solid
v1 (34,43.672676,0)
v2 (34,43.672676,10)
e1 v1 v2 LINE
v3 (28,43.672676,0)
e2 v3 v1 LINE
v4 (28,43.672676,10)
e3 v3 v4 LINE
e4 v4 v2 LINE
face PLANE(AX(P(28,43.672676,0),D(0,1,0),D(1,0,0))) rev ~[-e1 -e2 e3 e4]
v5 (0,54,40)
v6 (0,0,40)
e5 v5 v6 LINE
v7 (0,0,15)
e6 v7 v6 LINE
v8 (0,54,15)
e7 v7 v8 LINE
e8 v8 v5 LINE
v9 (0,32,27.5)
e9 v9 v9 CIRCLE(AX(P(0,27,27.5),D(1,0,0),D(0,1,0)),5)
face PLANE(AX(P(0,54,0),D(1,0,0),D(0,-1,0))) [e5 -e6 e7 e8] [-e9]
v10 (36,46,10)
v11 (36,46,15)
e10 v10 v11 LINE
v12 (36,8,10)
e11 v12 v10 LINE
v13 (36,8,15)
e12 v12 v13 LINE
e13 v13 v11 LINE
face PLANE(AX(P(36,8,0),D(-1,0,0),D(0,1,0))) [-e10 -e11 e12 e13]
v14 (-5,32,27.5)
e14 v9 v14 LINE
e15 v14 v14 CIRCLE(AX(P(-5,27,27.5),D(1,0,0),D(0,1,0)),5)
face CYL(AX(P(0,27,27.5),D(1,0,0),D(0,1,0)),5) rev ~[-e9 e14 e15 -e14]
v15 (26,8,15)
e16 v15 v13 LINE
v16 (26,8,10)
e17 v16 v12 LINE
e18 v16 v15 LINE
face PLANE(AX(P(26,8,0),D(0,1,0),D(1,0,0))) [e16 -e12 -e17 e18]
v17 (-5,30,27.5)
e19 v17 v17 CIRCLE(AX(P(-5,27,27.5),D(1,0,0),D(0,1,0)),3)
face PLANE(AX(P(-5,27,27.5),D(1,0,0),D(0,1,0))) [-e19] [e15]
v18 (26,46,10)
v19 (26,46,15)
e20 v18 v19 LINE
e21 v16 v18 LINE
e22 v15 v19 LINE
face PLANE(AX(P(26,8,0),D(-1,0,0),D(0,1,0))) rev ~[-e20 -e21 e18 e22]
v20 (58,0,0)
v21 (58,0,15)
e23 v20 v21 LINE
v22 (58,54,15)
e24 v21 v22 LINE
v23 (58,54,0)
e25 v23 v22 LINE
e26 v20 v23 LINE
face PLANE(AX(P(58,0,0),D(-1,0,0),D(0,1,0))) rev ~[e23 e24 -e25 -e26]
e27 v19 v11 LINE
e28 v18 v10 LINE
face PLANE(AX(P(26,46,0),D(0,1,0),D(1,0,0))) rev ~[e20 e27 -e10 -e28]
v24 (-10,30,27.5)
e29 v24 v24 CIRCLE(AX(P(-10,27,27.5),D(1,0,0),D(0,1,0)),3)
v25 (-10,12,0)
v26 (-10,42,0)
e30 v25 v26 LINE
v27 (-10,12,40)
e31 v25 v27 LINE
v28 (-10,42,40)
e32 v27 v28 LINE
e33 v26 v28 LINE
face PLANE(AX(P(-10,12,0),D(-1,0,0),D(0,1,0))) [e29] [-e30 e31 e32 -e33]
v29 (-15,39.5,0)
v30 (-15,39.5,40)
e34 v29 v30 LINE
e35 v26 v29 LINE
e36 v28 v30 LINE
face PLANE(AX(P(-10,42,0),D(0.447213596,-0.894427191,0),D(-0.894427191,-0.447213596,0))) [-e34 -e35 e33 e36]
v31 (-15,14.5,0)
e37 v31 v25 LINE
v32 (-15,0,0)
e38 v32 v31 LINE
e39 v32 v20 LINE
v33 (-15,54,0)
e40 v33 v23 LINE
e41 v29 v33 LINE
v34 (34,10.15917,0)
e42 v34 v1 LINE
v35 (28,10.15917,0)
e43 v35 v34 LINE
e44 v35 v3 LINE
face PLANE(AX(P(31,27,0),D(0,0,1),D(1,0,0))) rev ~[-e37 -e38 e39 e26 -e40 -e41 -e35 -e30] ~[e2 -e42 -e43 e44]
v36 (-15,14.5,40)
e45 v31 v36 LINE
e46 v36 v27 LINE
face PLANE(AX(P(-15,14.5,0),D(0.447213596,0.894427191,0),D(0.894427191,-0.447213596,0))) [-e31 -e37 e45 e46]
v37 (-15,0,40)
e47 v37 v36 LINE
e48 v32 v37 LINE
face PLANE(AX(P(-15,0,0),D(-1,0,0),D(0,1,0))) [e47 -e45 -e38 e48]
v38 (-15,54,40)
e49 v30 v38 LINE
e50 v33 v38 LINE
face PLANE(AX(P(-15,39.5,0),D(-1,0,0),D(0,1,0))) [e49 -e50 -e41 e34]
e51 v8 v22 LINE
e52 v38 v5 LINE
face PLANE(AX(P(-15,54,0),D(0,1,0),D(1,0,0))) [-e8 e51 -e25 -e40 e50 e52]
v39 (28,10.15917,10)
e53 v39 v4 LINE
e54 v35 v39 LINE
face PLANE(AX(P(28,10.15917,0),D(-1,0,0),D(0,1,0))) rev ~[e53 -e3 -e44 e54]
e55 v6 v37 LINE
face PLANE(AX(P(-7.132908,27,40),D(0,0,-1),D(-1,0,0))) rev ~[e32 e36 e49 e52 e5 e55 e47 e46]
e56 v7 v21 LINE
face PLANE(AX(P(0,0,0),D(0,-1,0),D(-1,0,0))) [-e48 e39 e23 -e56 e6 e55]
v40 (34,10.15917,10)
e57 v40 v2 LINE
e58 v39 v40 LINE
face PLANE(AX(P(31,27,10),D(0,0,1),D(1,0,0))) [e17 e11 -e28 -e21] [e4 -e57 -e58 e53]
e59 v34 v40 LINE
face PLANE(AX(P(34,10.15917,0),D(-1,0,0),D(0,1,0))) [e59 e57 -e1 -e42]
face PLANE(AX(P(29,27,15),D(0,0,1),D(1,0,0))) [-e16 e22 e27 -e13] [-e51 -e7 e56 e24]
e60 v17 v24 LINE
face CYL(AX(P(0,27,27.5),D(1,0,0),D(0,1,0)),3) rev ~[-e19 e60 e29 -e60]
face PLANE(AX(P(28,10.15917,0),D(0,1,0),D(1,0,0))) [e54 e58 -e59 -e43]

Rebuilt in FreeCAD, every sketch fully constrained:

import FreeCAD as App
import Part
import Sketcher

V = App.Vector


def add_polygon(sketch, points):
    """Adds a closed chain of lines whose ends are joined by coincident constraints."""
    first, n = sketch.GeometryCount, len(points)
    for a, b in zip(points, points[1:] + points[:1]):
        sketch.addGeometry(Part.LineSegment(App.Vector(*a, 0), App.Vector(*b, 0)), False)
    for i in range(n):
        sketch.addConstraint(Sketcher.Constraint("Coincident", first + i, 2, first + (i + 1) % n, 1))

doc = App.newDocument("Part")
body = doc.addObject("PartDesign::Body", "Body")

# Sketch on XY plane
sketch1 = doc.addObject("Sketcher::SketchObject", "Sketch")
body.addObject(sketch1)
sketch1.AttachmentSupport = (doc.XY_Plane, [""])
sketch1.MapMode = "FlatFace"
add_polygon(sketch1, [(0, 54), (0, 0), (58, 0), (58, 54)])  # lines 0-3
add_polygon(sketch1, [(36, 8), (26, 8), (26, 46), (36, 46)])  # lines 4-7
sketch1.addConstraint([
    Sketcher.Constraint("Vertical", 0),
    Sketcher.Constraint("Horizontal", 1),
    Sketcher.Constraint("Vertical", 2),
    Sketcher.Constraint("Horizontal", 3),
    Sketcher.Constraint("Horizontal", 4),
    Sketcher.Constraint("Vertical", 5),
    Sketcher.Constraint("Horizontal", 6),
    Sketcher.Constraint("Vertical", 7),
    Sketcher.Constraint("Coincident", 0, 2, -1, 1),
    Sketcher.Constraint("DistanceX", 1, 1, 1, 2, 58.0),
    Sketcher.Constraint("DistanceX", 4, 2, 4, 1, 10.0),
    Sketcher.Constraint("DistanceY", 0, 2, 0, 1, 54.0),
    Sketcher.Constraint("DistanceY", 5, 1, 5, 2, 38.0),
    Sketcher.Constraint("DistanceX", -1, 1, 4, 2, 26.0),
    Sketcher.Constraint("DistanceY", -1, 1, 4, 2, 8.0),
])
pad1 = doc.addObject("PartDesign::Pad", "Pad")
body.addObject(pad1)
pad1.Profile = sketch1
pad1.Length = 15

# Sketch on XY plane
sketch2 = doc.addObject("Sketcher::SketchObject", "Sketch001")
body.addObject(sketch2)
sketch2.AttachmentSupport = (doc.XY_Plane, [""])
sketch2.MapMode = "FlatFace"
add_polygon(sketch2, [(-15, 14.5), (-15, 0), (0, 0), (0, 54), (-15, 54), (-15, 39.5), (-10, 42), (-10, 12)])  # lines 0-7
sketch2.addConstraint([
    Sketcher.Constraint("Vertical", 0),
    Sketcher.Constraint("Horizontal", 1),
    Sketcher.Constraint("Vertical", 2),
    Sketcher.Constraint("Horizontal", 3),
    Sketcher.Constraint("Vertical", 4),
    Sketcher.Constraint("Vertical", 6),
    Sketcher.Constraint("Coincident", 1, 2, -1, 1),
    Sketcher.Constraint("Vertical", 0, 2, 3, 2),
    Sketcher.Constraint("Equal", 0, 4),
    Sketcher.Constraint("Equal", 5, 7),
    Sketcher.Constraint("DistanceX", 1, 1, 1, 2, 15.0),
    Sketcher.Constraint("DistanceY", 2, 1, 2, 2, 54.0),
    Sketcher.Constraint("DistanceY", 6, 2, 6, 1, 30.0),
    Sketcher.Constraint("DistanceY", 0, 2, 0, 1, 14.5),
    Sketcher.Constraint("DistanceX", 5, 2, -1, 1, 10.0),
])
pad2 = doc.addObject("PartDesign::Pad", "Pad001")
body.addObject(pad2)
pad2.Profile = sketch2
pad2.Length = 40

# Sketch on XY plane
sketch3 = doc.addObject("Sketcher::SketchObject", "Sketch002")
body.addObject(sketch3)
sketch3.AttachmentSupport = (doc.XY_Plane, [""])
sketch3.MapMode = "FlatFace"
add_polygon(sketch3, [(26, 46), (26, 8), (36, 8), (36, 46)])  # lines 0-3
add_polygon(sketch3, [(34, 10.15917), (28, 10.15917), (28, 43.672676), (34, 43.672676)])  # lines 4-7
sketch3.addConstraint([
    Sketcher.Constraint("Vertical", 0),
    Sketcher.Constraint("Horizontal", 1),
    Sketcher.Constraint("Vertical", 2),
    Sketcher.Constraint("Horizontal", 3),
    Sketcher.Constraint("Horizontal", 4),
    Sketcher.Constraint("Vertical", 5),
    Sketcher.Constraint("Horizontal", 6),
    Sketcher.Constraint("Vertical", 7),
    Sketcher.Constraint("DistanceX", 1, 1, 1, 2, 10.0),
    Sketcher.Constraint("DistanceX", 4, 2, 4, 1, 6.0),
    Sketcher.Constraint("DistanceY", 0, 2, 0, 1, 38.0),
    Sketcher.Constraint("DistanceX", -1, 1, 0, 2, 26.0),
    Sketcher.Constraint("DistanceY", -1, 1, 0, 2, 8.0),
    Sketcher.Constraint("DistanceX", -1, 1, 4, 2, 28.0),
    Sketcher.Constraint("DistanceY", 5, 1, 5, 2, 33.513506),
    Sketcher.Constraint("DistanceY", -1, 1, 4, 2, 10.15917),
])
pad3 = doc.addObject("PartDesign::Pad", "Pad002")
body.addObject(pad3)
pad3.Profile = sketch3
pad3.Length = 10

# Sketch on YZ plane
sketch4 = doc.addObject("Sketcher::SketchObject", "Sketch003")
body.addObject(sketch4)
sketch4.AttachmentSupport = (doc.YZ_Plane, [""])
sketch4.MapMode = "FlatFace"
sketch4.addGeometry(Part.Circle(V(27, 27.5, 0), V(0, 0, 1), 5), False)
sketch4.addConstraint([
    Sketcher.Constraint("Diameter", 0, 10.0),
    Sketcher.Constraint("DistanceX", -1, 1, 0, 3, 27.0),
    Sketcher.Constraint("DistanceY", -1, 1, 0, 3, 27.5),
])
pocket1 = doc.addObject("PartDesign::Pocket", "Pocket")
body.addObject(pocket1)
pocket1.Profile = sketch4
pocket1.Length = 5

# Sketch on YZ plane
sketch5 = doc.addObject("Sketcher::SketchObject", "Sketch004")
body.addObject(sketch5)
sketch5.AttachmentSupport = (doc.YZ_Plane, [""])
sketch5.MapMode = "FlatFace"
sketch5.addGeometry(Part.Circle(V(27, 27.5, 0), V(0, 0, 1), 3), False)
sketch5.addConstraint([
    Sketcher.Constraint("Diameter", 0, 6.0),
    Sketcher.Constraint("DistanceX", -1, 1, 0, 3, 27.0),
    Sketcher.Constraint("DistanceY", -1, 1, 0, 3, 27.5),
])
pocket2 = doc.addObject("PartDesign::Pocket", "Pocket001")
body.addObject(pocket2)
pocket2.Profile = sketch5
pocket2.Length = 10

doc.recompute()
